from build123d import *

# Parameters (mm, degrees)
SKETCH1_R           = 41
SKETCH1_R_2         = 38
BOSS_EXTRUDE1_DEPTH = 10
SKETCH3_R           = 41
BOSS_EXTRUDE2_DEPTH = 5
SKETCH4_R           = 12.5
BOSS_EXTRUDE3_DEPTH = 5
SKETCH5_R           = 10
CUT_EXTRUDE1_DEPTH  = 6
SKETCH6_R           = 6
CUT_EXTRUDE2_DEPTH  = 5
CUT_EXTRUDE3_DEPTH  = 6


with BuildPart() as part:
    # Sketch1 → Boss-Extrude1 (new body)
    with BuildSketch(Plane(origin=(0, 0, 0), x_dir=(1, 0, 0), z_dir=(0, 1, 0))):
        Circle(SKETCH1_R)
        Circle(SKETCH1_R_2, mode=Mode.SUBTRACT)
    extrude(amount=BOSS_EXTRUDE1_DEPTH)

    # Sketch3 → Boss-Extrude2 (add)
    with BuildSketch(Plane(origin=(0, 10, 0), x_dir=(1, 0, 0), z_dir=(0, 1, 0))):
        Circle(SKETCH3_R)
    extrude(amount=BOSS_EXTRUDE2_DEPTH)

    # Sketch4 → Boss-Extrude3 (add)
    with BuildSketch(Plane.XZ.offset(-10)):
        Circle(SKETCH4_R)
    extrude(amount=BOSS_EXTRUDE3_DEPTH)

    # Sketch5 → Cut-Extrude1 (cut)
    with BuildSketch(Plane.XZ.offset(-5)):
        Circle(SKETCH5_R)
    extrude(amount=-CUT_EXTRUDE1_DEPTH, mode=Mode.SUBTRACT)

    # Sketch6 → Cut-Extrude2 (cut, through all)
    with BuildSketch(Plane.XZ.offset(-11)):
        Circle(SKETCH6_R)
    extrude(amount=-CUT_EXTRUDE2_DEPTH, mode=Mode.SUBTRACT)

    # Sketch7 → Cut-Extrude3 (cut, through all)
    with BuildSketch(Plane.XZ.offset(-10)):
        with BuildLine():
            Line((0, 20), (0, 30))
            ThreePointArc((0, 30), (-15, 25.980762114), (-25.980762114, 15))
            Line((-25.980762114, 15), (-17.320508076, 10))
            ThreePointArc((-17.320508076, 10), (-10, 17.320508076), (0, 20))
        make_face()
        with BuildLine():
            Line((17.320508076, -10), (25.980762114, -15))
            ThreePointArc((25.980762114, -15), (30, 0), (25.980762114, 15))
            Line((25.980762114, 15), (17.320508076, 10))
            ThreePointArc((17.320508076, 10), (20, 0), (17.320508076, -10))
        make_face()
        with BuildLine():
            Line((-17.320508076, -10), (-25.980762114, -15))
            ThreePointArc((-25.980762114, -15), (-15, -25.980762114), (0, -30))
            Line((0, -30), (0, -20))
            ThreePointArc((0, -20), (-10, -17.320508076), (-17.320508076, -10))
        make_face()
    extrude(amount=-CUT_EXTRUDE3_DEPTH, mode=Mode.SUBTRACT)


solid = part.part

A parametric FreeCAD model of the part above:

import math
import FreeCAD as App
import Part
import Sketcher
Q = App.Units.Quantity

doc = App.newDocument("Part")
body = doc.addObject("PartDesign::Body", "Body")

# Sketch on XZ plane
sketch1 = body.newObject("Sketcher::SketchObject", "Sketch")
sketch1.AttachmentSupport = (doc.getObject("XZ_Plane"), [""])
sketch1.MapMode = "FlatFace"
sketch1.addGeometry(Part.Circle(App.Vector(0, 0, 0), App.Vector(0, 0, 1), 41), False)
sketch1.addGeometry(Part.Circle(App.Vector(0, 0, 0), App.Vector(0, 0, 1), 38), False)
sketch1.addConstraint(Sketcher.Constraint("Coincident", 0, 3, -1, 1))
sketch1.addConstraint(Sketcher.Constraint("Coincident", 1, 3, -1, 1))
sketch1.addConstraint(Sketcher.Constraint("Diameter", 0, Q("82 mm")))
sketch1.addConstraint(Sketcher.Constraint("Diameter", 1, Q("76 mm")))
pad1 = body.newObject("PartDesign::Pad", "Pad")
pad1.Profile = sketch1
pad1.Length = 10
pad1.Reversed = True

# Sketch on XZ plane
sketch2 = body.newObject("Sketcher::SketchObject", "Sketch001")
sketch2.AttachmentSupport = (doc.getObject("XZ_Plane"), [""])
sketch2.MapMode = "FlatFace"
sketch2.AttachmentOffset = App.Placement(App.Vector(0, 0, -10), App.Rotation())
sketch2.addGeometry(Part.Circle(App.Vector(0, 0, 0), App.Vector(0, 0, 1), 41), False)
sketch2.addConstraint(Sketcher.Constraint("Coincident", 0, 3, -1, 1))
sketch2.addConstraint(Sketcher.Constraint("Diameter", 0, Q("82 mm")))
pad2 = body.newObject("PartDesign::Pad", "Pad001")
pad2.Profile = sketch2
pad2.Length = 5
pad2.Reversed = True

# Sketch on XZ plane
sketch3 = body.newObject("Sketcher::SketchObject", "Sketch002")
sketch3.AttachmentSupport = (doc.getObject("XZ_Plane"), [""])
sketch3.MapMode = "FlatFace"
sketch3.AttachmentOffset = App.Placement(App.Vector(0, 0, -10), App.Rotation())
sketch3.addGeometry(Part.Circle(App.Vector(0, 0, 0), App.Vector(0, 0, 1), 12.5), False)
sketch3.addConstraint(Sketcher.Constraint("Coincident", 0, 3, -1, 1))
sketch3.addConstraint(Sketcher.Constraint("Diameter", 0, Q("25 mm")))
pad3 = body.newObject("PartDesign::Pad", "Pad002")
pad3.Profile = sketch3
pad3.Length = 5

# Sketch on XZ plane
sketch4 = body.newObject("Sketcher::SketchObject", "Sketch003")
sketch4.AttachmentSupport = (doc.getObject("XZ_Plane"), [""])
sketch4.MapMode = "FlatFace"
sketch4.AttachmentOffset = App.Placement(App.Vector(0, 0, -5), App.Rotation())
sketch4.addGeometry(Part.Circle(App.Vector(0, 0, 0), App.Vector(0, 0, 1), 10), False)
sketch4.addConstraint(Sketcher.Constraint("Coincident", 0, 3, -1, 1))
sketch4.addConstraint(Sketcher.Constraint("Diameter", 0, Q("20 mm")))
pocket1 = body.newObject("PartDesign::Pocket", "Pocket")
pocket1.Profile = sketch4
pocket1.Length = 6

# Sketch on XZ plane
sketch5 = body.newObject("Sketcher::SketchObject", "Sketch004")
sketch5.AttachmentSupport = (doc.getObject("XZ_Plane"), [""])
sketch5.MapMode = "FlatFace"
sketch5.AttachmentOffset = App.Placement(App.Vector(0, 0, -11), App.Rotation())
sketch5.addGeometry(Part.Circle(App.Vector(0, 0, 0), App.Vector(0, 0, 1), 6), False)
sketch5.addConstraint(Sketcher.Constraint("Coincident", 0, 3, -1, 1))
sketch5.addConstraint(Sketcher.Constraint("Diameter", 0, Q("12 mm")))
pocket2 = body.newObject("PartDesign::Pocket", "Pocket001")
pocket2.Profile = sketch5
pocket2.Type = "ThroughAll"

# Sketch on XZ plane
sketch6 = body.newObject("Sketcher::SketchObject", "Sketch005")
sketch6.AttachmentSupport = (doc.getObject("XZ_Plane"), [""])
sketch6.MapMode = "FlatFace"
sketch6.AttachmentOffset = App.Placement(App.Vector(0, 0, -10), App.Rotation())
sketch6.addGeometry(Part.LineSegment(App.Vector(0, 20, 0), App.Vector(0, 30, 0)), False)
sketch6.addGeometry(Part.ArcOfCircle(Part.Circle(App.Vector(0, 0, 0), App.Vector(0, 0, 1), 30), math.radians(90), math.radians(150)), False)
sketch6.addGeometry(Part.LineSegment(App.Vector(-25.980762, 15, 0), App.Vector(-17.320508, 10, 0)), False)
sketch6.addGeometry(Part.ArcOfCircle(Part.Circle(App.Vector(0, 0, 0), App.Vector(0, 0, 1), 20), math.radians(90), math.radians(150)), False)
sketch6.addGeometry(Part.LineSegment(App.Vector(17.320508, -10, 0), App.Vector(25.980762, -15, 0)), False)
sketch6.addGeometry(Part.ArcOfCircle(Part.Circle(App.Vector(0, 0, 0), App.Vector(0, 0, 1), 30), math.radians(-30), math.radians(30)), False)
sketch6.addGeometry(Part.LineSegment(App.Vector(25.980762, 15, 0), App.Vector(17.320508, 10, 0)), False)
sketch6.addGeometry(Part.ArcOfCircle(Part.Circle(App.Vector(0, 0, 0), App.Vector(0, 0, 1), 20), math.radians(-30), math.radians(30)), False)
sketch6.addGeometry(Part.LineSegment(App.Vector(-17.320508, -10, 0), App.Vector(-25.980762, -15, 0)), False)
sketch6.addGeometry(Part.ArcOfCircle(Part.Circle(App.Vector(0, 0, 0), App.Vector(0, 0, 1), 30), math.radians(-150), math.radians(-90)), False)
sketch6.addGeometry(Part.LineSegment(App.Vector(0, -30, 0), App.Vector(0, -20, 0)), False)
sketch6.addGeometry(Part.ArcOfCircle(Part.Circle(App.Vector(0, 0, 0), App.Vector(0, 0, 1), 20), math.radians(-150), math.radians(-90)), False)
sketch6.addConstraint(Sketcher.Constraint("Coincident", 0, 2, 1, 1))
sketch6.addConstraint(Sketcher.Constraint("Coincident", 1, 2, 2, 1))
sketch6.addConstraint(Sketcher.Constraint("Coincident", 2, 2, 3, 2))
sketch6.addConstraint(Sketcher.Constraint("Coincident", 3, 1, 0, 1))
sketch6.addConstraint(Sketcher.Constraint("Coincident", 4, 2, 5, 1))
sketch6.addConstraint(Sketcher.Constraint("Coincident", 5, 2, 6, 1))
sketch6.addConstraint(Sketcher.Constraint("Coincident", 6, 2, 7, 2))
sketch6.addConstraint(Sketcher.Constraint("Coincident", 7, 1, 4, 1))
sketch6.addConstraint(Sketcher.Constraint("Coincident", 8, 2, 9, 1))
sketch6.addConstraint(Sketcher.Constraint("Coincident", 9, 2, 10, 1))
sketch6.addConstraint(Sketcher.Constraint("Coincident", 10, 2, 11, 2))
sketch6.addConstraint(Sketcher.Constraint("Coincident", 11, 1, 8, 1))
sketch6.addConstraint(Sketcher.Constraint("Vertical", 0))
sketch6.addConstraint(Sketcher.Constraint("Vertical", 10))
sketch6.addConstraint(Sketcher.Constraint("Coincident", 1, 3, -1, 1))
sketch6.addConstraint(Sketcher.Constraint("Coincident", 3, 3, -1, 1))
sketch6.addConstraint(Sketcher.Constraint("Coincident", 5, 3, -1, 1))
sketch6.addConstraint(Sketcher.Constraint("Coincident", 7, 3, -1, 1))
sketch6.addConstraint(Sketcher.Constraint("Coincident", 9, 3, -1, 1))
sketch6.addConstraint(Sketcher.Constraint("Coincident", 11, 3, -1, 1))
sketch6.addConstraint(Sketcher.Constraint("Equal", 1, 5))
sketch6.addConstraint(Sketcher.Constraint("Equal", 3, 7))
sketch6.addConstraint(Sketcher.Constraint("Equal", 5, 9))
sketch6.addConstraint(Sketcher.Constraint("Equal", 7, 11))
sketch6.addConstraint(Sketcher.Constraint("PointOnObject", 0, 2, -2))
sketch6.addConstraint(Sketcher.Constraint("PointOnObject", 9, 2, -2))
sketch6.addConstraint(Sketcher.Constraint("Parallel", 2, 4))
sketch6.addConstraint(Sketcher.Constraint("Parallel", 6, 8))
sketch6.addConstraint(Sketcher.Constraint("Horizontal", 1, 2, 5, 2))
sketch6.addConstraint(Sketcher.Constraint("Horizontal", 2, 2, 6, 2))
sketch6.addConstraint(Sketcher.Constraint("Horizontal", 4, 2, 8, 2))
sketch6.addConstraint(Sketcher.Constraint("Vertical", 4, 2, 5, 2))
sketch6.addConstraint(Sketcher.Constraint("Radius", 1, Q("30 mm")))
sketch6.addConstraint(Sketcher.Constraint("Radius", 3, Q("20 mm")))
sketch6.addConstraint(Sketcher.Constraint("Angle", 2, Q("-30 deg")))
sketch6.addConstraint(Sketcher.Constraint("DistanceY", -1, 1, 1, 2, Q("15 mm")))
pocket3 = body.newObject("PartDesign::Pocket", "Pocket002")
pocket3.Profile = sketch6
pocket3.Type = "ThroughAll"

doc.recompute()
